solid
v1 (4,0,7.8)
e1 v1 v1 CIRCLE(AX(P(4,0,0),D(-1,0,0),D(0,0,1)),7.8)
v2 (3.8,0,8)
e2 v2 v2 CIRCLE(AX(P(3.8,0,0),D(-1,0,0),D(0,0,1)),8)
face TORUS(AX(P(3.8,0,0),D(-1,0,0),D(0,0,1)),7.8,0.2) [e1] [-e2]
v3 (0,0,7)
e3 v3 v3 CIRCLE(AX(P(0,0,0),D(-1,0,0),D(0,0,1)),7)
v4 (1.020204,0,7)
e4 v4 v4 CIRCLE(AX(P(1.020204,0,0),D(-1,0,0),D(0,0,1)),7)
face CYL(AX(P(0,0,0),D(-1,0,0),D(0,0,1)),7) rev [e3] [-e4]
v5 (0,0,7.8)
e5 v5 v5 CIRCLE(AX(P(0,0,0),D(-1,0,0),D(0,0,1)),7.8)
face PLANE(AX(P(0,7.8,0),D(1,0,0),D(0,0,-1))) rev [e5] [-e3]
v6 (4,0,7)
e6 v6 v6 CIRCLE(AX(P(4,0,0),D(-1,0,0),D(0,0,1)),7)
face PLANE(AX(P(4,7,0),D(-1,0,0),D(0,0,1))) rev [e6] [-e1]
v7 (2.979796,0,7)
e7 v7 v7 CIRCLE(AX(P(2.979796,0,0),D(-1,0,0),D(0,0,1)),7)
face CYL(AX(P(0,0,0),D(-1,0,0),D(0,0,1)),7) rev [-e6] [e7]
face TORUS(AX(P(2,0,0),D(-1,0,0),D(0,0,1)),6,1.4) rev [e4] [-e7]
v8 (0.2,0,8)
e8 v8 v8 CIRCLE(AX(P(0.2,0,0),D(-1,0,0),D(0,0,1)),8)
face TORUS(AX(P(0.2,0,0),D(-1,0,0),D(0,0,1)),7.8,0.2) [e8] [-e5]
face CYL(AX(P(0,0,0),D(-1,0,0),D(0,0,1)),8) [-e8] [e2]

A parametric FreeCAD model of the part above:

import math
import FreeCAD as App
import Part
import Sketcher
from FreeCAD import Vector
Q = App.Units.Quantity

doc = App.newDocument("Part")
body = doc.addObject("PartDesign::Body", "Body")

sketch1 = body.newObject("Sketcher::SketchObject", "Sketch")
sketch1.AttachmentSupport = (doc.getObject("XY_Plane"), [""])
sketch1.MapMode = "FlatFace"
sketch1.addGeometry(Part.LineSegment(Vector(0, 7, 0), Vector(1.020204, 7, 0)), False)
sketch1.addGeometry(Part.ArcOfCircle(Part.Circle(Vector(2, 6, 0), Vector(0, 0, 1), 1.4), math.radians(45.584691), math.radians(134.415309)), False)
sketch1.addGeometry(Part.LineSegment(Vector(2.979796, 7, 0), Vector(4, 7, 0)), False)
sketch1.addGeometry(Part.LineSegment(Vector(4, 7, 0), Vector(4, 7.8, 0)), False)
sketch1.addGeometry(Part.ArcOfCircle(Part.Circle(Vector(3.8, 7.8, 0), Vector(0, 0, 1), 0.2), math.radians(0), math.radians(90)), False)
sketch1.addGeometry(Part.LineSegment(Vector(3.8, 8, 0), Vector(0.2, 8, 0)), False)
sketch1.addGeometry(Part.ArcOfCircle(Part.Circle(Vector(0.2, 7.8, 0), Vector(0, 0, 1), 0.2), math.radians(90), math.radians(180)), False)
sketch1.addGeometry(Part.LineSegment(Vector(0, 7.8, 0), Vector(0, 7, 0)), False)
sketch1.addConstraint(Sketcher.Constraint("Coincident", 0, 2, 1, 2))
sketch1.addConstraint(Sketcher.Constraint("Coincident", 1, 1, 2, 1))
sketch1.addConstraint(Sketcher.Constraint("Coincident", 2, 2, 3, 1))
sketch1.addConstraint(Sketcher.Constraint("Tangent", 3, 2, 4, 1))
sketch1.addConstraint(Sketcher.Constraint("Tangent", 4, 2, 5, 1))
sketch1.addConstraint(Sketcher.Constraint("Tangent", 5, 2, 6, 1))
sketch1.addConstraint(Sketcher.Constraint("Tangent", 6, 2, 7, 1))
sketch1.addConstraint(Sketcher.Constraint("Coincident", 7, 2, 0, 1))
sketch1.addConstraint(Sketcher.Constraint("Horizontal", 0))
sketch1.addConstraint(Sketcher.Constraint("Horizontal", 2))
sketch1.addConstraint(Sketcher.Constraint("Vertical", 3))
sketch1.addConstraint(Sketcher.Constraint("Horizontal", 5))
sketch1.addConstraint(Sketcher.Constraint("Vertical", 7))
sketch1.addConstraint(Sketcher.Constraint("Equal", 4, 6))
sketch1.addConstraint(Sketcher.Constraint("PointOnObject", 6, 2, -2))
sketch1.addConstraint(Sketcher.Constraint("Horizontal", 0, 2, 1, 1))
sketch1.addConstraint(Sketcher.Constraint("Equal", 0, 2))
sketch1.addConstraint(Sketcher.Constraint("Radius", 1, Q("1.4 mm")))
sketch1.addConstraint(Sketcher.Constraint("Radius", 4, Q("0.2 mm")))
sketch1.addConstraint(Sketcher.Constraint("DistanceX", 5, 2, 5, 1, Q("3.6 mm")))
sketch1.addConstraint(Sketcher.Constraint("DistanceY", 3, 1, 3, 2, Q("0.8 mm")))
sketch1.addConstraint(Sketcher.Constraint("DistanceY", -1, 1, 1, 3, Q("6 mm")))
sketch1.addConstraint(Sketcher.Constraint("DistanceY", -1, 1, 0, 2, Q("7 mm")))
revolution = body.newObject("PartDesign::Revolution", "Revolution")
revolution.Profile = sketch1
revolution.ReferenceAxis = (sketch1, ["H_Axis"])
revolution.Angle = 360

doc.recompute()
